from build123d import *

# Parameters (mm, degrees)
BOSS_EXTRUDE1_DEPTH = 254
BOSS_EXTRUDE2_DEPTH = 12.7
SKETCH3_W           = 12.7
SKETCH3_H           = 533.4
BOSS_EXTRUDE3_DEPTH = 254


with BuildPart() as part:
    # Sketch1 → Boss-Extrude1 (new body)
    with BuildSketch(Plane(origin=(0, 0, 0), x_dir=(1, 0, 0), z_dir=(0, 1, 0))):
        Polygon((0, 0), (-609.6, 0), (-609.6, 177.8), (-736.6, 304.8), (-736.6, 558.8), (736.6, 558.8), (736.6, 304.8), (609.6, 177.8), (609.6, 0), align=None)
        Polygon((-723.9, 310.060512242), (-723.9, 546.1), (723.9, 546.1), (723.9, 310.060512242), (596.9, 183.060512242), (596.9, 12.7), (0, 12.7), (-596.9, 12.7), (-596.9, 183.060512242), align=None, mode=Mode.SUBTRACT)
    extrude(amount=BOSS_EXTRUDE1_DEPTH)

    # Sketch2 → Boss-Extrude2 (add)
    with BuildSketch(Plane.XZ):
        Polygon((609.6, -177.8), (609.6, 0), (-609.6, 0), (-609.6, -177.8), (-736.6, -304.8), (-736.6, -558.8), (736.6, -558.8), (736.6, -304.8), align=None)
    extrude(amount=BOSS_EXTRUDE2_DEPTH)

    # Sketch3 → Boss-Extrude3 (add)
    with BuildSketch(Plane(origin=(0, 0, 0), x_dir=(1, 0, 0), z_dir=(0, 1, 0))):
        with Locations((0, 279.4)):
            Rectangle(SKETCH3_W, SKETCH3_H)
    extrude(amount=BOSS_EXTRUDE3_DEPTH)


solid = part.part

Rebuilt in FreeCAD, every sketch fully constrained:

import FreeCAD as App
import Part
import Sketcher
Q = App.Units.Quantity


def add_polygon(sketch, points):
    """Adds a closed chain of lines whose ends are joined by coincident constraints."""
    first, n = sketch.GeometryCount, len(points)
    for a, b in zip(points, points[1:] + points[:1]):
        sketch.addGeometry(Part.LineSegment(App.Vector(*a, 0), App.Vector(*b, 0)), False)
    for i in range(n):
        sketch.addConstraint(Sketcher.Constraint("Coincident", first + i, 2, first + (i + 1) % n, 1))

doc = App.newDocument("Part")
body = doc.addObject("PartDesign::Body", "Body")

# Sketch on XZ plane
sketch1 = body.newObject("Sketcher::SketchObject", "Sketch")
sketch1.AttachmentSupport = (doc.getObject("XZ_Plane"), [""])
sketch1.MapMode = "FlatFace"
add_polygon(sketch1, [(-610, 0), (610, 0), (610, -178), (737, -305), (737, -559), (-737, -559), (-737, -305), (-610, -178)])  # lines 0-7
add_polygon(sketch1, [(-724, -310), (-724, -546), (724, -546), (724, -310), (597, -183), (597, -13), (-597, -13), (-597, -183)])  # lines 8-15
sketch1.addConstraint(Sketcher.Constraint("Horizontal", 0))
sketch1.addConstraint(Sketcher.Constraint("Vertical", 1))
sketch1.addConstraint(Sketcher.Constraint("Vertical", 3))
sketch1.addConstraint(Sketcher.Constraint("Horizontal", 4))
sketch1.addConstraint(Sketcher.Constraint("Vertical", 5))
sketch1.addConstraint(Sketcher.Constraint("Vertical", 7))
sketch1.addConstraint(Sketcher.Constraint("Vertical", 8))
sketch1.addConstraint(Sketcher.Constraint("Horizontal", 9))
sketch1.addConstraint(Sketcher.Constraint("Vertical", 10))
sketch1.addConstraint(Sketcher.Constraint("Vertical", 12))
sketch1.addConstraint(Sketcher.Constraint("Horizontal", 13))
sketch1.addConstraint(Sketcher.Constraint("Vertical", 14))
sketch1.addConstraint(Sketcher.Constraint("Symmetric", 0, 2, 7, 2, -1, 1))
sketch1.addConstraint(Sketcher.Constraint("Symmetric", 2, 2, 5, 2, -2))
sketch1.addConstraint(Sketcher.Constraint("Symmetric", 11, 2, 14, 2, -2))
sketch1.addConstraint(Sketcher.Constraint("Symmetric", 10, 2, 15, 2, -2))
sketch1.addConstraint(Sketcher.Constraint("Perpendicular", 2, 6))
sketch1.addConstraint(Sketcher.Constraint("Perpendicular", 6, 11))
sketch1.addConstraint(Sketcher.Constraint("Perpendicular", 11, 15))
sketch1.addConstraint(Sketcher.Constraint("Equal", 6, 11))
sketch1.addConstraint(Sketcher.Constraint("DistanceX", 0, 1, 0, 2, Q("48 in")))
sketch1.addConstraint(Sketcher.Constraint("DistanceX", 4, 2, 4, 1, Q("58 in")))
sketch1.addConstraint(Sketcher.Constraint("DistanceX", 9, 1, 9, 2, Q("57 in")))
sketch1.addConstraint(Sketcher.Constraint("DistanceY", 1, 2, 1, 1, Q("7 in")))
sketch1.addConstraint(Sketcher.Constraint("DistanceY", 3, 2, 3, 1, Q("10 in")))
sketch1.addConstraint(Sketcher.Constraint("DistanceY", 8, 2, 13, 2, Q("21 in")))
sketch1.addConstraint(Sketcher.Constraint("DistanceY", 8, 2, -1, 1, Q("21.5 in")))
sketch1.addConstraint(Sketcher.Constraint("DistanceY", 8, 2, 8, 1, 236.039488))
pad1 = body.newObject("PartDesign::Pad", "Pad")
pad1.Profile = sketch1
pad1.Length = Q("10 in")
pad1.Reversed = True

# Sketch on XZ plane
sketch2 = body.newObject("Sketcher::SketchObject", "Sketch001")
sketch2.AttachmentSupport = (doc.getObject("XZ_Plane"), [""])
sketch2.MapMode = "FlatFace"
add_polygon(sketch2, [(610, -178), (610, 0), (-610, 0), (-610, -178), (-737, -305), (-737, -559), (737, -559), (737, -305)])  # lines 0-7
sketch2.addConstraint(Sketcher.Constraint("Vertical", 0))
sketch2.addConstraint(Sketcher.Constraint("Horizontal", 1))
sketch2.addConstraint(Sketcher.Constraint("Vertical", 2))
sketch2.addConstraint(Sketcher.Constraint("Vertical", 4))
sketch2.addConstraint(Sketcher.Constraint("Horizontal", 5))
sketch2.addConstraint(Sketcher.Constraint("Vertical", 6))
sketch2.addConstraint(Sketcher.Constraint("Symmetric", 0, 2, 1, 2, -1, 1))
sketch2.addConstraint(Sketcher.Constraint("Symmetric", 3, 2, 6, 2, -2))
sketch2.addConstraint(Sketcher.Constraint("Perpendicular", 3, 7))
sketch2.addConstraint(Sketcher.Constraint("Horizontal", 2, 2, 7, 2))
sketch2.addConstraint(Sketcher.Constraint("DistanceX", 1, 2, 1, 1, Q("48 in")))
sketch2.addConstraint(Sketcher.Constraint("DistanceX", 5, 1, 5, 2, Q("58 in")))
sketch2.addConstraint(Sketcher.Constraint("DistanceY", 0, 1, 0, 2, Q("7 in")))
sketch2.addConstraint(Sketcher.Constraint("DistanceY", 4, 2, 4, 1, Q("10 in")))
pad2 = body.newObject("PartDesign::Pad", "Pad001")
pad2.Profile = sketch2
pad2.Length = Q("0.5 in")

# Sketch on XZ plane
sketch3 = body.newObject("Sketcher::SketchObject", "Sketch002")
sketch3.AttachmentSupport = (doc.getObject("XZ_Plane"), [""])
sketch3.MapMode = "FlatFace"
add_polygon(sketch3, [(-6, -546), (-6, -13), (6, -13), (6, -546)])  # lines 0-3
sketch3.addConstraint(Sketcher.Constraint("Vertical", 0))
sketch3.addConstraint(Sketcher.Constraint("Horizontal", 1))
sketch3.addConstraint(Sketcher.Constraint("Vertical", 2))
sketch3.addConstraint(Sketcher.Constraint("Horizontal", 3))
sketch3.addConstraint(Sketcher.Constraint("DistanceY", 0, 1, 0, 2, Q("21 in")))
sketch3.addConstraint(Sketcher.Constraint("DistanceX", 1, 1, 1, 2, Q("0.5 in")))
sketch3.addConstraint(Sketcher.Constraint("DistanceY", 0, 2, -1, 1, Q("0.5 in")))
sketch3.addConstraint(Sketcher.Constraint("DistanceX", 0, 2, -1, 1, Q("0.25 in")))
pad3 = body.newObject("PartDesign::Pad", "Pad002")
pad3.Profile = sketch3
pad3.Length = Q("10 in")
pad3.Reversed = True

doc.recompute()
